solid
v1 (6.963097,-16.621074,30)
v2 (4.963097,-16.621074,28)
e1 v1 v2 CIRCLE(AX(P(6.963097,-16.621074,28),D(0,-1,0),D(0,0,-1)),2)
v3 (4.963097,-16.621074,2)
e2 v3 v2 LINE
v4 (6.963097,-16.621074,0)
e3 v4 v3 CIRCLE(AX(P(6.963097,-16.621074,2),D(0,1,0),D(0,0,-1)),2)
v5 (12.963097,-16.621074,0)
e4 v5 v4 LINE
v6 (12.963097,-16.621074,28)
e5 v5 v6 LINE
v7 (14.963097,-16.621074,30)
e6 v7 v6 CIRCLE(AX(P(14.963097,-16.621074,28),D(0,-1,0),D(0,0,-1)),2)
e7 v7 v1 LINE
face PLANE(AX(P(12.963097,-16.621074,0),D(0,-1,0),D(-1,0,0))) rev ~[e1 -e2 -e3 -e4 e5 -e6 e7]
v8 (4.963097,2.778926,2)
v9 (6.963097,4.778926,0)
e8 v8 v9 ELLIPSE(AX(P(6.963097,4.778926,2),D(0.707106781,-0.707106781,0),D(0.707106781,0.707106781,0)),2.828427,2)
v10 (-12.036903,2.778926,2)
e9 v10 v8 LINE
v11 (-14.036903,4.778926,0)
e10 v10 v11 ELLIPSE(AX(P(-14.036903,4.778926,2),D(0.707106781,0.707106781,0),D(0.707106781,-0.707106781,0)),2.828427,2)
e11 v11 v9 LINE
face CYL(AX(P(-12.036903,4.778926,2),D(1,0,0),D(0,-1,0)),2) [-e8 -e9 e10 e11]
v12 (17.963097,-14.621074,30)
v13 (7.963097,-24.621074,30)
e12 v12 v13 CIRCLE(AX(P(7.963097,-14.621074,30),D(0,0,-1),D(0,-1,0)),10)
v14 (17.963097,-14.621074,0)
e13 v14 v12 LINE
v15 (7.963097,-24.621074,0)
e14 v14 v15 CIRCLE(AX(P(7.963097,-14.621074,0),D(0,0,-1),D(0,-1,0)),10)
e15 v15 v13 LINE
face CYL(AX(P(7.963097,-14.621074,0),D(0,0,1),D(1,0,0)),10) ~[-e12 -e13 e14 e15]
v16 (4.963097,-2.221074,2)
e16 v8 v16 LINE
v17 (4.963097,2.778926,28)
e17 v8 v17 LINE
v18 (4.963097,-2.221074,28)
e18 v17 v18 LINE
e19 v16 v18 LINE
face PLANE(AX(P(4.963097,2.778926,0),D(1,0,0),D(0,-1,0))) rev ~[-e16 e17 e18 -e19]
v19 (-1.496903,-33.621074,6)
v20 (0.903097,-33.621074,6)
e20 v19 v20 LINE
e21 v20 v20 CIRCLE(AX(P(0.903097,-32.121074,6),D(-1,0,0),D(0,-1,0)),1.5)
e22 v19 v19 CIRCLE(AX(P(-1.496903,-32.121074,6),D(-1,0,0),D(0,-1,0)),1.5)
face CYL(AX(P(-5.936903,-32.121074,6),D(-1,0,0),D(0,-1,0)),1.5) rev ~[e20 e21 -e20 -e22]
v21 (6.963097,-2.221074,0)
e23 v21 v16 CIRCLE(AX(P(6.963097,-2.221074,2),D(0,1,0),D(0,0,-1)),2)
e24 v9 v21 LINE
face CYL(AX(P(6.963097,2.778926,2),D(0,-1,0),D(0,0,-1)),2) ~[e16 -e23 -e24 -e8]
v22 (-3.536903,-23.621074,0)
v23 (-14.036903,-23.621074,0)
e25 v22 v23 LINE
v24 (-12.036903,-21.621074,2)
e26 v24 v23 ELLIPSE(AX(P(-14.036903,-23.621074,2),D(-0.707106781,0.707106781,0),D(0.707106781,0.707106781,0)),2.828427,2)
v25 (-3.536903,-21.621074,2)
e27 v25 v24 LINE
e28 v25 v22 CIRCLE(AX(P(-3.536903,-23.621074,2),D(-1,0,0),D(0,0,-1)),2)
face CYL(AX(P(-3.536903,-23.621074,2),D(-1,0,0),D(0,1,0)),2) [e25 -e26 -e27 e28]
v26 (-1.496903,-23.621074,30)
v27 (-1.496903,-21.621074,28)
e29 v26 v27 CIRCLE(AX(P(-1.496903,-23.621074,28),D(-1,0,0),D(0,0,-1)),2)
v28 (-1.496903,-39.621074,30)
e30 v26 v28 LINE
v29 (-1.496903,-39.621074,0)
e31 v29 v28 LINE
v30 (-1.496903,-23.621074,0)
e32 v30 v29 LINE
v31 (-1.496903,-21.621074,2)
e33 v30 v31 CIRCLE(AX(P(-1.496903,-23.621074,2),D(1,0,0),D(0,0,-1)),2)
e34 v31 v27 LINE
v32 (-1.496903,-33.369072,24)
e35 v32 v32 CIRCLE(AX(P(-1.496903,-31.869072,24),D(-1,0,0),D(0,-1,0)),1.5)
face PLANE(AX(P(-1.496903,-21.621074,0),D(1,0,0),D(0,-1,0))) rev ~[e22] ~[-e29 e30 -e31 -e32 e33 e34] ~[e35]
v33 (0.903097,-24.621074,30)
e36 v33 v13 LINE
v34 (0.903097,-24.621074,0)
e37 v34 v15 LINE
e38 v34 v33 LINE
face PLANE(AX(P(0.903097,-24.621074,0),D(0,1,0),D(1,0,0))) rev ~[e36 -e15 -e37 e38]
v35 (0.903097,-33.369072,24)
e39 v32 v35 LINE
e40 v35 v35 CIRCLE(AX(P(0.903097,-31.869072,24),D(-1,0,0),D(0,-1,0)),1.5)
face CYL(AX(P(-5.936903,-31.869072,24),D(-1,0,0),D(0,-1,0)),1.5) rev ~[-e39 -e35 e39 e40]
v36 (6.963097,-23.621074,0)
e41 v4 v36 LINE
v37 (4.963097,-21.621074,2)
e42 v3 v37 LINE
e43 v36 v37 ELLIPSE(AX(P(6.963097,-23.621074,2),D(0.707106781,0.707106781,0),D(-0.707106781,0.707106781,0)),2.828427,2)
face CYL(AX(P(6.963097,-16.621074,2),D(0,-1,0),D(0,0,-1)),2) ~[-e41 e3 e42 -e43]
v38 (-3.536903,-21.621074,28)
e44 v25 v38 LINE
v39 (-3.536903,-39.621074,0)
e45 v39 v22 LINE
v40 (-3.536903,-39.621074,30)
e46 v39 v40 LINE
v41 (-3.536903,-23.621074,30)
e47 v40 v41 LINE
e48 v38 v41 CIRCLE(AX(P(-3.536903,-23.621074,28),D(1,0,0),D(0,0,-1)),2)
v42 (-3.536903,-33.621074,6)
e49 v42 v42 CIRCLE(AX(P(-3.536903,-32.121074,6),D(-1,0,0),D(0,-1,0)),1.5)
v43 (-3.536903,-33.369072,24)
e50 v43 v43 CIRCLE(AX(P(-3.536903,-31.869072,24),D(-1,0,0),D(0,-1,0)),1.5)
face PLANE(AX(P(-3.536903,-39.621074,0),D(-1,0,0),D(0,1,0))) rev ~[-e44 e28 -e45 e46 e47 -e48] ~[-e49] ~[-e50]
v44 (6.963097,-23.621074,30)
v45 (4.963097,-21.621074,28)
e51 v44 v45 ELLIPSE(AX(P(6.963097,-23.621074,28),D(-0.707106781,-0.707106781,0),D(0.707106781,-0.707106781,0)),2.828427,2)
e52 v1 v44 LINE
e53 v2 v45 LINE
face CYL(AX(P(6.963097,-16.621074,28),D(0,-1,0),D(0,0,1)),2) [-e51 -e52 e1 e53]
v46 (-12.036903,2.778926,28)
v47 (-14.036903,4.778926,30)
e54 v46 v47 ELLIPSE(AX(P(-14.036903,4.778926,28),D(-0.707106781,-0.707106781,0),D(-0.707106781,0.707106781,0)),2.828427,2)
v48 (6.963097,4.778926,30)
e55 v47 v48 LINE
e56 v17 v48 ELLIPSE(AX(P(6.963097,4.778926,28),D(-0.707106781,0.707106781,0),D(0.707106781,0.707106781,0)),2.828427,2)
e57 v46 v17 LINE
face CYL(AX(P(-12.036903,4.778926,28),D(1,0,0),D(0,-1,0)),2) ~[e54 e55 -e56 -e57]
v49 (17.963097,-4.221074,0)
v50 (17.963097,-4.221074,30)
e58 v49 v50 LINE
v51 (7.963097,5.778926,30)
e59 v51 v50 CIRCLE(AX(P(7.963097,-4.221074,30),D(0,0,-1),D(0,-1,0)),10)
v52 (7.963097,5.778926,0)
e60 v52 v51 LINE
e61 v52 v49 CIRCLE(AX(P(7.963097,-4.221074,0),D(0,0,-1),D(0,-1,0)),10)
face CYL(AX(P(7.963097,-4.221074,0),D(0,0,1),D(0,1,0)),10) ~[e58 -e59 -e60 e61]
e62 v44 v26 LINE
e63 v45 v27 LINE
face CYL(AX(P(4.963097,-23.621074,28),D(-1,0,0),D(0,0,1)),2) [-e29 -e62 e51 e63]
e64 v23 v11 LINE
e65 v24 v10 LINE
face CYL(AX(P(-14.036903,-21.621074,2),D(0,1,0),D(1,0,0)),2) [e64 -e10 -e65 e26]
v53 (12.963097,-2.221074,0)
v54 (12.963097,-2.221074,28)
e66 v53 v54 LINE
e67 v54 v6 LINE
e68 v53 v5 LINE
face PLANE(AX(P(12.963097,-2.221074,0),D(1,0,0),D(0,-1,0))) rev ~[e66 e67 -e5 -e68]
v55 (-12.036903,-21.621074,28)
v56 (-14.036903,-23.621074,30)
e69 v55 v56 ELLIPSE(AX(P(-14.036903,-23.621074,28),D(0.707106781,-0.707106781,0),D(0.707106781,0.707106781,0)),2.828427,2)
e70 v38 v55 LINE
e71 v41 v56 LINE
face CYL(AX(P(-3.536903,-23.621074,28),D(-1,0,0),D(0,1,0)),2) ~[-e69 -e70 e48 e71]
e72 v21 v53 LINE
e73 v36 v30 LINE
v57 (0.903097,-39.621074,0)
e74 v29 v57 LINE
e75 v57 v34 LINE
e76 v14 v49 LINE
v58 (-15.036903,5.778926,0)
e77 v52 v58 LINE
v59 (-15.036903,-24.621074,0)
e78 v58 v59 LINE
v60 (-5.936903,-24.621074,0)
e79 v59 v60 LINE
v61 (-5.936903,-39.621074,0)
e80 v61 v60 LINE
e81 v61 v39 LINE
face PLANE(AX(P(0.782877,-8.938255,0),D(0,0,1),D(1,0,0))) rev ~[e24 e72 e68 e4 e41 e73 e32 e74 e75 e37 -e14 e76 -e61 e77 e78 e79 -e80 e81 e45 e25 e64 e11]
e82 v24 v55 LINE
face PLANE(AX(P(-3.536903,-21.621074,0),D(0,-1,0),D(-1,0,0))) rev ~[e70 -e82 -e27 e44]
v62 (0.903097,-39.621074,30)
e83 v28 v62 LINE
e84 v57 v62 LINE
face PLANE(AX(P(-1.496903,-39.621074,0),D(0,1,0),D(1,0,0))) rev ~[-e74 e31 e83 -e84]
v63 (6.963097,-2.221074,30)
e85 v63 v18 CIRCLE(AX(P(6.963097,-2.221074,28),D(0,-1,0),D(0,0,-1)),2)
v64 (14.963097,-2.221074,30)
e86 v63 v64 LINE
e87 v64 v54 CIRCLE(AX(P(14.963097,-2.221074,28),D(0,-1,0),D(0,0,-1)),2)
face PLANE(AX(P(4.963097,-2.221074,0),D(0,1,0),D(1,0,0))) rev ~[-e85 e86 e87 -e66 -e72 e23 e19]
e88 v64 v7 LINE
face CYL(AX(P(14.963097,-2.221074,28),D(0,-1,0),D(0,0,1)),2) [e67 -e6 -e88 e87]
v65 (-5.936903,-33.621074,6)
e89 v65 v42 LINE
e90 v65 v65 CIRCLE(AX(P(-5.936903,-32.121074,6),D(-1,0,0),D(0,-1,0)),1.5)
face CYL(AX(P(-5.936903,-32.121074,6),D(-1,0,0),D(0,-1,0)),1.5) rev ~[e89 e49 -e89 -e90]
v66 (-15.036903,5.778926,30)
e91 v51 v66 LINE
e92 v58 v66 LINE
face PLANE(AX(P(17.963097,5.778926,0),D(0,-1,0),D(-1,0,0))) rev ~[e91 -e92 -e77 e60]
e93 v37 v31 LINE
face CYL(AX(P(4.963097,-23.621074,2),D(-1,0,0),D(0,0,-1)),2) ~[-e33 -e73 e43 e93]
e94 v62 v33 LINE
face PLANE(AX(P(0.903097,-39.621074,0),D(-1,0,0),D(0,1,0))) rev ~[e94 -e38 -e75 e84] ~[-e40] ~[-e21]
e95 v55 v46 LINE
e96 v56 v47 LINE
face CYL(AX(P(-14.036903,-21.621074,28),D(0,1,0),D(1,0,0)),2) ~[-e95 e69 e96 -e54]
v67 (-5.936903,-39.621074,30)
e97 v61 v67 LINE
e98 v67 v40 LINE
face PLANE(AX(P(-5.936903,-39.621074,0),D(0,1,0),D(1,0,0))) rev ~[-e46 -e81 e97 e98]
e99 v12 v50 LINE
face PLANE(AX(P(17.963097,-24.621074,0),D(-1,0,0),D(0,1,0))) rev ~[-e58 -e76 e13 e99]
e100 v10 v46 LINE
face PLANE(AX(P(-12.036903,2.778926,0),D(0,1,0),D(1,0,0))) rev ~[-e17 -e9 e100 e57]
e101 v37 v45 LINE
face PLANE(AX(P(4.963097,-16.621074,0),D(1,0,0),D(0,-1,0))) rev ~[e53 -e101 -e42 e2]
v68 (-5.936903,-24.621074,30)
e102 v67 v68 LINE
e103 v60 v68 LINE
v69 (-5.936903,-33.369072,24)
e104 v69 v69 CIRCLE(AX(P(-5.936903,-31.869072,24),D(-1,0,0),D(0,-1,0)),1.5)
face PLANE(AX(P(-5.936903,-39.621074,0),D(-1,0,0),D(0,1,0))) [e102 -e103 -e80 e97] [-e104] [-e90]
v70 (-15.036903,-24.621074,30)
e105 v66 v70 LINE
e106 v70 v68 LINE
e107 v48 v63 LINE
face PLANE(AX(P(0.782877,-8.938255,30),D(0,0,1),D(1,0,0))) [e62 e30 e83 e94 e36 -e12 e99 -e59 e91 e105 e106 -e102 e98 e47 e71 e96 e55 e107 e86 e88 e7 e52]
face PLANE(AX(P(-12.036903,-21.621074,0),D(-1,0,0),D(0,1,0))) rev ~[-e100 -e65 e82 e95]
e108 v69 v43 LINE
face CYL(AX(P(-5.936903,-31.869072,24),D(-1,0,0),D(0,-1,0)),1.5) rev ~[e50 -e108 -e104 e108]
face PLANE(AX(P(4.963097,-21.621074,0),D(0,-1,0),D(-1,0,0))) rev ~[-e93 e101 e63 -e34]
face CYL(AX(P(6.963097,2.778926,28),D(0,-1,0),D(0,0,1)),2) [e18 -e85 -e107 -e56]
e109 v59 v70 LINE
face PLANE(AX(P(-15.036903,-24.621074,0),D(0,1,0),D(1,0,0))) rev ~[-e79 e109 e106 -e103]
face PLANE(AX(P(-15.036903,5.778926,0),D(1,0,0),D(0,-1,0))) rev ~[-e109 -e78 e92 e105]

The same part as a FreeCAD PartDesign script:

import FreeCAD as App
import Part
import Sketcher


def edges_at(feature, points):
    """Names of the edges that pass closest to the given points."""
    edges = feature.Shape.Edges
    near = lambda p: min(range(len(edges)), key=lambda i: edges[i].distToShape(Part.Vertex(*p))[0])
    return sorted({f"Edge{near(p) + 1}" for p in points})


def add_polygon(sketch, points):
    """Adds a closed chain of lines whose ends are joined by coincident constraints."""
    first, n = sketch.GeometryCount, len(points)
    for a, b in zip(points, points[1:] + points[:1]):
        sketch.addGeometry(Part.LineSegment(App.Vector(*a, 0), App.Vector(*b, 0)), False)
    for i in range(n):
        sketch.addConstraint(Sketcher.Constraint("Coincident", first + i, 2, first + (i + 1) % n, 1))

doc = App.newDocument("Part")
params = doc.addObject("Spreadsheet::Sheet", "Params")
for row, (alias, value) in enumerate([
    ("sketch1_width", "17 mm"),
    ("sketch1_width2", "8 mm"),
    ("sketch1_width3", "33 mm"),
    ("sketch1_height", "5 mm"),
    ("sketch1_height2", "18 mm"),
    ("pad1_length", "30 mm"),
    ("sketch2_diameter", "3 mm"),
    ("pocket1_length", "25 mm"),
    ("fillet_radius", "2 mm"),
    ("fillet2_radius", "10 mm"),
], start=1):
    params.set(f"A{row}", alias)
    params.set(f"B{row}", "=" + value)
    params.setAlias(f"B{row}", alias)

body = doc.addObject("PartDesign::Body", "Body")

sketch1 = doc.addObject("Sketcher::SketchObject", "Sketch")
body.addObject(sketch1)
sketch1.AttachmentSupport = (doc.XY_Plane, [""])
sketch1.MapMode = "FlatFace"
add_polygon(sketch1, [(-12, -21.6), (-12, 2.8), (5, 2.8), (5, -2.2), (13, -2.2), (13, -16.6), (5, -16.6), (5, -21.6), (-1.5, -21.6), (-1.5, -39.6), (0.9, -39.6), (0.9, -24.6), (18, -24.6), (18, 5.8), (-15, 5.8), (-15, -24.6), (-5.9, -24.6), (-5.9, -39.6), (-3.5, -39.6), (-3.5, -21.6)])
sketch1.addConstraint([
    Sketcher.Constraint("Vertical", 0),
    Sketcher.Constraint("Horizontal", 1),
    Sketcher.Constraint("Vertical", 2),
    Sketcher.Constraint("Horizontal", 3),
    Sketcher.Constraint("Vertical", 4),
    Sketcher.Constraint("Horizontal", 5),
    Sketcher.Constraint("Vertical", 6),
    Sketcher.Constraint("Horizontal", 7),
    Sketcher.Constraint("Vertical", 8),
    Sketcher.Constraint("Horizontal", 9),
    Sketcher.Constraint("Vertical", 10),
    Sketcher.Constraint("Horizontal", 11),
    Sketcher.Constraint("Vertical", 12),
    Sketcher.Constraint("Horizontal", 13),
    Sketcher.Constraint("Vertical", 14),
    Sketcher.Constraint("Horizontal", 15),
    Sketcher.Constraint("Vertical", 16),
    Sketcher.Constraint("Horizontal", 17),
    Sketcher.Constraint("Vertical", 18),
    Sketcher.Constraint("Horizontal", 19),
    Sketcher.Constraint("Horizontal", 11, 2, 14, 2),
    Sketcher.Constraint("Horizontal", 9, 2, 16, 2),
    Sketcher.Constraint("Horizontal", 7, 2, 18, 2),
    Sketcher.Constraint("Vertical", 2, 2, 5, 2),
    Sketcher.Constraint("Equal", 9, 17),
    Sketcher.Constraint("Equal", 2, 6),
    Sketcher.Constraint("DistanceX", 1, 1, 1, 2, 17.0),
    Sketcher.Constraint("DistanceX", 3, 1, 3, 2, 8.0),
    Sketcher.Constraint("DistanceX", 13, 2, 13, 1, 33.0),
    Sketcher.Constraint("DistanceY", 2, 2, 2, 1, 5.0),
    Sketcher.Constraint("DistanceY", 8, 2, 8, 1, 18.0),
    Sketcher.Constraint("DistanceY", 10, 1, 10, 2, 15.0),
    Sketcher.Constraint("DistanceX", 9, 1, 9, 2, 2.4),
    Sketcher.Constraint("DistanceX", 15, 1, 15, 2, 9.1),
    Sketcher.Constraint("DistanceX", 19, 2, 19, 1, 8.5),
    Sketcher.Constraint("DistanceY", 0, 1, 0, 2, 24.4),
    Sketcher.Constraint("DistanceY", 12, 1, 12, 2, 30.4),
    Sketcher.Constraint("DistanceX", 7, 2, 7, 1, 6.46),
    Sketcher.Constraint("DistanceX", 0, 2, -1, 1, 12.036903),
    Sketcher.Constraint("DistanceY", -1, 1, 0, 2, 2.778926),
])
sketch1.setExpression("Constraints[46]", "Params.sketch1_width")
sketch1.setExpression("Constraints[47]", "Params.sketch1_width2")
sketch1.setExpression("Constraints[48]", "Params.sketch1_width3")
sketch1.setExpression("Constraints[49]", "Params.sketch1_height")
sketch1.setExpression("Constraints[50]", "Params.sketch1_height2")
pad1 = doc.addObject("PartDesign::Pad", "Pad")
body.addObject(pad1)
pad1.Profile = sketch1
pad1.setExpression("Length", "Params.pad1_length")

sketch2 = doc.addObject("Sketcher::SketchObject", "Sketch001")
body.addObject(sketch2)
sketch2.AttachmentSupport = (doc.YZ_Plane, [""])
sketch2.MapMode = "FlatFace"
sketch2.AttachmentOffset = App.Placement(App.Vector(0, 0, -5.936903), App.Rotation())
sketch2.addGeometry([
    Part.Circle(App.Vector(-32.1, 6, 0), App.Vector(0, 0, 1), 1.5),
    Part.Circle(App.Vector(-31.9, 24, 0), App.Vector(0, 0, 1), 1.5),
], False)
sketch2.addConstraint([
    Sketcher.Constraint("Equal", 0, 1),
    Sketcher.Constraint("Diameter", 0, 3.0),
    Sketcher.Constraint("DistanceY", -1, 1, 0, 3, 6.0),
    Sketcher.Constraint("DistanceY", -1, 1, 1, 3, 24.0),
    Sketcher.Constraint("DistanceX", 1, 3, -1, 1, 31.869072),
    Sketcher.Constraint("DistanceX", 0, 3, -1, 1, 32.121074),
])
sketch2.setExpression("Constraints[1]", "Params.sketch2_diameter")
pocket1 = doc.addObject("PartDesign::Pocket", "Pocket")
body.addObject(pocket1)
pocket1.Profile = sketch2
pocket1.setExpression("Length", "Params.pocket1_length")
pocket1.Reversed = True
doc.recompute()

fillet = doc.addObject("PartDesign::Fillet", "Fillet")
body.addObject(fillet)
fillet.Base = (pocket1, edges_at(pocket1, [
    (-12.037, -9.421, 30),
    (-3.537, 2.779, 30),
    (4.963, 0.279, 30),
    (4.963, -19.121, 30),
    (1.733, -21.621, 30),
    (-7.787, -21.621, 30),
    (12.963, -9.421, 30),
    (-3.537, 2.779, 0),
    (-12.037, -9.421, 0),
    (-7.787, -21.621, 0),
    (1.733, -21.621, 0),
    (4.963, -19.121, 0),
    (4.963, 0.279, 0),
]))
fillet.setExpression("Radius", "Params.fillet_radius")
doc.recompute()

fillet2 = doc.addObject("PartDesign::Fillet", "Fillet001")
body.addObject(fillet2)
fillet2.Base = (fillet, edges_at(fillet, [(17.963, 5.779, 15), (17.963, -24.621, 15)]))
fillet2.setExpression("Radius", "Params.fillet2_radius")

doc.recompute()
